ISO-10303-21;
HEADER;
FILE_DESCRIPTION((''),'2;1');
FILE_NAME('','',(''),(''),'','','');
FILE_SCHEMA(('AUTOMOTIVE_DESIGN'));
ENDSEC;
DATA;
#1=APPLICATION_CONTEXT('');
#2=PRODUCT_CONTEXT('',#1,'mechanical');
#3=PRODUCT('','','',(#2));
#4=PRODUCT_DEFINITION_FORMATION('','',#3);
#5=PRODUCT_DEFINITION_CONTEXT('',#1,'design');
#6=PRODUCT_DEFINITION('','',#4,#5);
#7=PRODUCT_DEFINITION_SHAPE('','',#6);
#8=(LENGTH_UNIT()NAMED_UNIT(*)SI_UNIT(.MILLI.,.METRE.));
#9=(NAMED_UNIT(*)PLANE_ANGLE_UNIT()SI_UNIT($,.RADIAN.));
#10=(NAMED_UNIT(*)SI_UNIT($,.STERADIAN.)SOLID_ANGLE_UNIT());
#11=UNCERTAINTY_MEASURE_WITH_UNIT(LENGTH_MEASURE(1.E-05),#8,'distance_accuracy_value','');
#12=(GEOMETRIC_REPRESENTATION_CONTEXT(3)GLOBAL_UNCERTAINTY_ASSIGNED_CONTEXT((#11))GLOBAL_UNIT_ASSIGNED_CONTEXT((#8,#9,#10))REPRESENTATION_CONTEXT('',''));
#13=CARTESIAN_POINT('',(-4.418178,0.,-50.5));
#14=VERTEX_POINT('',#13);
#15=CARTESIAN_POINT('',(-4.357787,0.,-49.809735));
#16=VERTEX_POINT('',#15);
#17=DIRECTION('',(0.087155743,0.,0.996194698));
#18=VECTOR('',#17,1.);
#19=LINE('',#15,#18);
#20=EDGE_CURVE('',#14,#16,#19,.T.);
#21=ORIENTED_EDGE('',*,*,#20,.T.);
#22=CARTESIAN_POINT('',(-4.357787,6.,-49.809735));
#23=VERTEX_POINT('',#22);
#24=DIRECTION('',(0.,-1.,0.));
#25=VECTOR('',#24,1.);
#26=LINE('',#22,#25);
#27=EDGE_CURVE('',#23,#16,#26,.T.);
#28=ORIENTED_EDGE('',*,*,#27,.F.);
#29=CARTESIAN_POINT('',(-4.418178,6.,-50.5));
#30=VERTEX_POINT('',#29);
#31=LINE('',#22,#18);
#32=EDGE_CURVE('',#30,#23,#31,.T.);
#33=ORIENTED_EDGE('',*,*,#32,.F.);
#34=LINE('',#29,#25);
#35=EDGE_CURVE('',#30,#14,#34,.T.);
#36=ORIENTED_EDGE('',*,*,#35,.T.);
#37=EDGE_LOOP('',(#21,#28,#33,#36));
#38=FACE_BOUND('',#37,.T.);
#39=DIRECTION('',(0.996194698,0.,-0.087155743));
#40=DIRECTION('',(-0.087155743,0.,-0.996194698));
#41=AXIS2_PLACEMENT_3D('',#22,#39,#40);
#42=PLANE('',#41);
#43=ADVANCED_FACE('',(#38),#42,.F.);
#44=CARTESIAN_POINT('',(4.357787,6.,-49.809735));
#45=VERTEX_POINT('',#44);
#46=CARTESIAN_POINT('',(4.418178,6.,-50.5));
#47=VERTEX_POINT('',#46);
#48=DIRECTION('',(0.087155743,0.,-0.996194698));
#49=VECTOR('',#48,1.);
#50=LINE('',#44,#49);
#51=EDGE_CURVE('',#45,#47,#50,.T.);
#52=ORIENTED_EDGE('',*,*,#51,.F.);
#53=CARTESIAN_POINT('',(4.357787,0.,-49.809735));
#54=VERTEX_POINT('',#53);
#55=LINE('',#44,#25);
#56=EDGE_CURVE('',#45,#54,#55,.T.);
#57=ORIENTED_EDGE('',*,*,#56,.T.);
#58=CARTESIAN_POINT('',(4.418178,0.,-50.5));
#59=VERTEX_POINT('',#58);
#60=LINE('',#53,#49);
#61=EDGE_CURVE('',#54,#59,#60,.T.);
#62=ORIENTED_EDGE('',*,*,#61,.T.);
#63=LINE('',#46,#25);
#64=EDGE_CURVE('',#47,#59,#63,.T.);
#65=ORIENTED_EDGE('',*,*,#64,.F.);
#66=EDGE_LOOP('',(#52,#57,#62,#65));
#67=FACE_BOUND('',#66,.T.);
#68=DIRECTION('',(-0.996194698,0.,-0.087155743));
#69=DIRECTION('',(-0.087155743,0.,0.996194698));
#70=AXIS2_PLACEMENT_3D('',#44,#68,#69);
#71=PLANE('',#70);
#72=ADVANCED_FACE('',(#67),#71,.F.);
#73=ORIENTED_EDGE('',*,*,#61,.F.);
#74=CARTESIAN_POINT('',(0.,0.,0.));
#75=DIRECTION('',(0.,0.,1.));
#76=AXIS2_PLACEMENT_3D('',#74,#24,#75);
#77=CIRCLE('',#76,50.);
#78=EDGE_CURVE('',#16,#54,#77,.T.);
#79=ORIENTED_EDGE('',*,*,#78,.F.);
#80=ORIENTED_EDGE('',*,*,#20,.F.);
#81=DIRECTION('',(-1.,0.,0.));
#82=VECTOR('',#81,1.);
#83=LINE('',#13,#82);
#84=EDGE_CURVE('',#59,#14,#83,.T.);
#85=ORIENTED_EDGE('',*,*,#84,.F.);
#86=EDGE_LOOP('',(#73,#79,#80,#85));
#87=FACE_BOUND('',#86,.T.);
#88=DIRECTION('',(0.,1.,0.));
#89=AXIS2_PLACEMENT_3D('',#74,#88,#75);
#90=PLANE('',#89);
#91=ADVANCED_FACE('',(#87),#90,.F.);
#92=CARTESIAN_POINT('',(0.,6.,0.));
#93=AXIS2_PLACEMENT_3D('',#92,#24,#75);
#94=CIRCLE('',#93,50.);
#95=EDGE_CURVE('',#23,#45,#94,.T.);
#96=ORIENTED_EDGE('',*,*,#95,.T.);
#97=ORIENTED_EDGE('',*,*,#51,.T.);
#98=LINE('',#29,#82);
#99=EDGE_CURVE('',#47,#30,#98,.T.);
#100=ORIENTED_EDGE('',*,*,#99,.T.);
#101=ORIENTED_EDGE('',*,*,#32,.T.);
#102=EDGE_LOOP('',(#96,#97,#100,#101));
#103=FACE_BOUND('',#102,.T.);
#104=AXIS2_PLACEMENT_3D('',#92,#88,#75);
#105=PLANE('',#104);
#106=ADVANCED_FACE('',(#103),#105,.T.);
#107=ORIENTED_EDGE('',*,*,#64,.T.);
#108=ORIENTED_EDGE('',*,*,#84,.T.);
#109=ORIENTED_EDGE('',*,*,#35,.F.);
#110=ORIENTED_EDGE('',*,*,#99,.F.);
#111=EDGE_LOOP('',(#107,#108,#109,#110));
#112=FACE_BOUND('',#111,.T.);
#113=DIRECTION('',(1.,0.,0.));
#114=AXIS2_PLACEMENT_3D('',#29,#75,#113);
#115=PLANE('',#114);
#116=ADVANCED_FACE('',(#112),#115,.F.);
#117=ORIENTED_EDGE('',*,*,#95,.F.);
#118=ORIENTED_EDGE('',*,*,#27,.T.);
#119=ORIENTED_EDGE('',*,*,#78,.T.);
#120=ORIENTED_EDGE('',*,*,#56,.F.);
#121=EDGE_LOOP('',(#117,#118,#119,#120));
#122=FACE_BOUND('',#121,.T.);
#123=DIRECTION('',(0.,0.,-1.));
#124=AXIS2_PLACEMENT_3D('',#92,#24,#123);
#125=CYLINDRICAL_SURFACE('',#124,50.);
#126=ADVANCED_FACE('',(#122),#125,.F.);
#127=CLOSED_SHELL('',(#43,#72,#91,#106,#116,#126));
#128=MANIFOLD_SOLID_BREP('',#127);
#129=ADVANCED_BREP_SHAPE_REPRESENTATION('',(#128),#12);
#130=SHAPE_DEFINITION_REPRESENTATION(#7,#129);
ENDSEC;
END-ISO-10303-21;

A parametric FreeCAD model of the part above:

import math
import FreeCAD as App
import Part
import Sketcher
Q = App.Units.Quantity

doc = App.newDocument("Part")
body = doc.addObject("PartDesign::Body", "Body")

# Sketch on XZ plane
sketch1 = body.newObject("Sketcher::SketchObject", "Sketch")
sketch1.AttachmentSupport = (doc.getObject("XZ_Plane"), [""])
sketch1.MapMode = "FlatFace"
sketch1.addGeometry([
    Part.LineSegment(App.Vector(4.418178, -50.5, 0), App.Vector(-4.418178, -50.5, 0)),
    Part.LineSegment(App.Vector(-4.418178, -50.5, 0), App.Vector(-4.357787, -49.809735, 0)),
    Part.ArcOfCircle(Part.Circle(App.Vector(0, 0, 0), App.Vector(0, 0, 1), 50), math.radians(-95), math.radians(-85)),
    Part.LineSegment(App.Vector(4.357787, -49.809735, 0), App.Vector(4.418178, -50.5, 0)),
], False)
sketch1.addConstraint([
    Sketcher.Constraint("Coincident", 0, 2, 1, 1),
    Sketcher.Constraint("Coincident", 1, 2, 2, 1),
    Sketcher.Constraint("Coincident", 2, 2, 3, 1),
    Sketcher.Constraint("Coincident", 3, 2, 0, 1),
    Sketcher.Constraint("Horizontal", 0),
    Sketcher.Constraint("Coincident", 2, 3, -1, 1),
    Sketcher.Constraint("Horizontal", 1, 2, 2, 2),
    Sketcher.Constraint("Equal", 1, 3),
    Sketcher.Constraint("Radius", 2, 50.0),
    Sketcher.Constraint("Angle", 1, Q("85 deg")),
    Sketcher.Constraint("DistanceY", 0, 2, -1, 1, 50.5),
    Sketcher.Constraint("Distance", 1, 0.692902),
])
pad1 = body.newObject("PartDesign::Pad", "Pad")
pad1.Profile = sketch1
pad1.Length = 6
pad1.Reversed = True

doc.recompute()
